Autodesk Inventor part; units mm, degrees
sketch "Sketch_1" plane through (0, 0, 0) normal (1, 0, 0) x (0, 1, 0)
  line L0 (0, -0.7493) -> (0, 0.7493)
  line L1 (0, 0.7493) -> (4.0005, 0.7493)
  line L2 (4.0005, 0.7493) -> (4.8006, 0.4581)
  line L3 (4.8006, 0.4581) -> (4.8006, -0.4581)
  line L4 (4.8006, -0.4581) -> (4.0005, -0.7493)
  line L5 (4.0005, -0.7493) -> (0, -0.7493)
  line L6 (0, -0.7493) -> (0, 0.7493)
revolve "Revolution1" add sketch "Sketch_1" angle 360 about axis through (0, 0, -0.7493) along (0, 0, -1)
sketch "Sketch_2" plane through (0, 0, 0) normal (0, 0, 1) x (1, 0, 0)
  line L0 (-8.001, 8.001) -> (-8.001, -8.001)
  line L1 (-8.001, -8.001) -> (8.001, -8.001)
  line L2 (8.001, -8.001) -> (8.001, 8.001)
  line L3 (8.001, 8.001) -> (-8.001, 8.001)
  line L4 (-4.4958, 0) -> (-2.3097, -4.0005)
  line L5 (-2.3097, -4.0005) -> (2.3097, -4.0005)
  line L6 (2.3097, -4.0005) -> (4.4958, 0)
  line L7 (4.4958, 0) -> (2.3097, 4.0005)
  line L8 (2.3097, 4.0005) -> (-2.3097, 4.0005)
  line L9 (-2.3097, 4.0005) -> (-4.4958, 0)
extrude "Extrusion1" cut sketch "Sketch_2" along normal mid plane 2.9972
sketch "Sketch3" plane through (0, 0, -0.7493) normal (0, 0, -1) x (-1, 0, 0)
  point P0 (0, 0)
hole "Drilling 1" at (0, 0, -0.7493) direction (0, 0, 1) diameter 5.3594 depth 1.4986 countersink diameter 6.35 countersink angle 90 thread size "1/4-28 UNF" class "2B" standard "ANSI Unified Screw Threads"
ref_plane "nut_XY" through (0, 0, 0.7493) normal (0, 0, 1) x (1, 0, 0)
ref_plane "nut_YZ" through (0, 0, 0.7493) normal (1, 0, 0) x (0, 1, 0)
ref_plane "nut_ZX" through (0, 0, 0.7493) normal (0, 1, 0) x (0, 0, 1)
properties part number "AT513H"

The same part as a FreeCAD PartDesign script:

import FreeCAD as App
import Part
import Sketcher
from FreeCAD import Vector
Q = App.Units.Quantity


def add_polygon(sketch, points):
    """Adds a closed chain of lines whose ends are joined by coincident constraints."""
    first, n = sketch.GeometryCount, len(points)
    for a, b in zip(points, points[1:] + points[:1]):
        sketch.addGeometry(Part.LineSegment(App.Vector(*a, 0), App.Vector(*b, 0)), False)
    for i in range(n):
        sketch.addConstraint(Sketcher.Constraint("Coincident", first + i, 2, first + (i + 1) % n, 1))

doc = App.newDocument("Part")
body = doc.addObject("PartDesign::Body", "Body")

# Sketch on YZ plane
sketch1 = body.newObject("Sketcher::SketchObject", "Sketch")
sketch1.AttachmentSupport = (doc.getObject("YZ_Plane"), [""])
sketch1.MapMode = "FlatFace"
add_polygon(sketch1, [(0, 0.7), (0, -0.7), (4, -0.7), (4.8, -0.5), (4.8, 0.5), (4, 0.7)])  # lines 0-5
sketch1.addConstraint(Sketcher.Constraint("Vertical", 0))
sketch1.addConstraint(Sketcher.Constraint("Horizontal", 1))
sketch1.addConstraint(Sketcher.Constraint("Vertical", 3))
sketch1.addConstraint(Sketcher.Constraint("Horizontal", 5))
sketch1.addConstraint(Sketcher.Constraint("Symmetric", 0, 2, 5, 2, -1, 1))
sketch1.addConstraint(Sketcher.Constraint("Vertical", 1, 2, 4, 2))
sketch1.addConstraint(Sketcher.Constraint("Equal", 2, 4))
sketch1.addConstraint(Sketcher.Constraint("Angle", 2, Q("19.9992 deg")))
sketch1.addConstraint(Sketcher.Constraint("DistanceY", 0, 2, 0, 1, Q("0.059 in")))
sketch1.addConstraint(Sketcher.Constraint("DistanceX", 1, 1, 1, 2, Q("0.1575 in")))
sketch1.addConstraint(Sketcher.Constraint("DistanceX", -1, 1, 2, 2, Q("0.189 in")))
revolution = body.newObject("PartDesign::Revolution", "Revolution")
revolution.Profile = sketch1
revolution.ReferenceAxis = (sketch1, ["V_Axis"])
revolution.Angle = 360

# Sketch on XY plane
sketch2 = body.newObject("Sketcher::SketchObject", "Sketch001")
sketch2.AttachmentSupport = (doc.getObject("XY_Plane"), [""])
sketch2.MapMode = "FlatFace"
add_polygon(sketch2, [(8, 8), (-8, 8), (-8, -8), (8, -8)])  # lines 0-3
add_polygon(sketch2, [(-2.3, -4), (-4.5, 0), (-2.3, 4), (2.3, 4), (4.5, 0), (2.3, -4)])  # lines 4-9
sketch2.addConstraint(Sketcher.Constraint("Horizontal", 0))
sketch2.addConstraint(Sketcher.Constraint("Vertical", 1))
sketch2.addConstraint(Sketcher.Constraint("Horizontal", 2))
sketch2.addConstraint(Sketcher.Constraint("Vertical", 3))
sketch2.addConstraint(Sketcher.Constraint("Horizontal", 6))
sketch2.addConstraint(Sketcher.Constraint("Horizontal", 9))
sketch2.addConstraint(Sketcher.Constraint("Symmetric", 0, 2, 2, 2, -1, 1))
sketch2.addConstraint(Sketcher.Constraint("Symmetric", 4, 2, 7, 2, -1, 1))
sketch2.addConstraint(Sketcher.Constraint("Symmetric", 5, 2, 8, 2, -1, 1))
sketch2.addConstraint(Sketcher.Constraint("PointOnObject", 4, 2, -1))
sketch2.addConstraint(Sketcher.Constraint("Parallel", 4, 7))
sketch2.addConstraint(Sketcher.Constraint("Vertical", 6, 2, 8, 2))
sketch2.addConstraint(Sketcher.Constraint("Equal", 2, 1))
sketch2.addConstraint(Sketcher.Constraint("DistanceX", 0, 2, 0, 1, Q("0.63 in")))
sketch2.addConstraint(Sketcher.Constraint("DistanceX", 4, 2, -1, 1, Q("0.177 in")))
sketch2.addConstraint(Sketcher.Constraint("DistanceY", 8, 2, 6, 2, Q("0.315 in")))
sketch2.addConstraint(Sketcher.Constraint("DistanceX", 6, 1, 6, 2, 4.6194))
pocket1 = body.newObject("PartDesign::Pocket", "Pocket")
pocket1.Profile = sketch2
pocket1.Length = Q("0.118 in")
pocket1.Midplane = True

# Sketch on XY plane
sketch3 = body.newObject("Sketcher::SketchObject", "Sketch002")
sketch3.AttachmentSupport = (doc.getObject("XY_Plane"), [""])
sketch3.MapMode = "FlatFace"
sketch3.AttachmentOffset = App.Placement(Vector(0, 0, -0.0295 * 25.4), App.Rotation())
sketch3.addGeometry(Part.Circle(Vector(0, 0, 0), Vector(0, 0, 1), 2.7), False)
sketch3.addConstraint(Sketcher.Constraint("Coincident", 0, 3, -1, 1))
sketch3.addConstraint(Sketcher.Constraint("Diameter", 0, Q("0.211 in")))
doc.recompute()
hole = body.newObject("PartDesign::Hole", "Hole")
hole.Profile = sketch3
hole.ThreadType = "None"
hole.Diameter = Q("0.211 in")
hole.DepthType = "Dimension"
hole.Depth = Q("0.059 in")
hole.DrillPoint = "Flat"
hole.HoleCutType = "Countersink"
hole.HoleCutDiameter = Q("0.25 in")
hole.HoleCutCountersinkAngle = 90
hole.Reversed = True

doc.recompute()
